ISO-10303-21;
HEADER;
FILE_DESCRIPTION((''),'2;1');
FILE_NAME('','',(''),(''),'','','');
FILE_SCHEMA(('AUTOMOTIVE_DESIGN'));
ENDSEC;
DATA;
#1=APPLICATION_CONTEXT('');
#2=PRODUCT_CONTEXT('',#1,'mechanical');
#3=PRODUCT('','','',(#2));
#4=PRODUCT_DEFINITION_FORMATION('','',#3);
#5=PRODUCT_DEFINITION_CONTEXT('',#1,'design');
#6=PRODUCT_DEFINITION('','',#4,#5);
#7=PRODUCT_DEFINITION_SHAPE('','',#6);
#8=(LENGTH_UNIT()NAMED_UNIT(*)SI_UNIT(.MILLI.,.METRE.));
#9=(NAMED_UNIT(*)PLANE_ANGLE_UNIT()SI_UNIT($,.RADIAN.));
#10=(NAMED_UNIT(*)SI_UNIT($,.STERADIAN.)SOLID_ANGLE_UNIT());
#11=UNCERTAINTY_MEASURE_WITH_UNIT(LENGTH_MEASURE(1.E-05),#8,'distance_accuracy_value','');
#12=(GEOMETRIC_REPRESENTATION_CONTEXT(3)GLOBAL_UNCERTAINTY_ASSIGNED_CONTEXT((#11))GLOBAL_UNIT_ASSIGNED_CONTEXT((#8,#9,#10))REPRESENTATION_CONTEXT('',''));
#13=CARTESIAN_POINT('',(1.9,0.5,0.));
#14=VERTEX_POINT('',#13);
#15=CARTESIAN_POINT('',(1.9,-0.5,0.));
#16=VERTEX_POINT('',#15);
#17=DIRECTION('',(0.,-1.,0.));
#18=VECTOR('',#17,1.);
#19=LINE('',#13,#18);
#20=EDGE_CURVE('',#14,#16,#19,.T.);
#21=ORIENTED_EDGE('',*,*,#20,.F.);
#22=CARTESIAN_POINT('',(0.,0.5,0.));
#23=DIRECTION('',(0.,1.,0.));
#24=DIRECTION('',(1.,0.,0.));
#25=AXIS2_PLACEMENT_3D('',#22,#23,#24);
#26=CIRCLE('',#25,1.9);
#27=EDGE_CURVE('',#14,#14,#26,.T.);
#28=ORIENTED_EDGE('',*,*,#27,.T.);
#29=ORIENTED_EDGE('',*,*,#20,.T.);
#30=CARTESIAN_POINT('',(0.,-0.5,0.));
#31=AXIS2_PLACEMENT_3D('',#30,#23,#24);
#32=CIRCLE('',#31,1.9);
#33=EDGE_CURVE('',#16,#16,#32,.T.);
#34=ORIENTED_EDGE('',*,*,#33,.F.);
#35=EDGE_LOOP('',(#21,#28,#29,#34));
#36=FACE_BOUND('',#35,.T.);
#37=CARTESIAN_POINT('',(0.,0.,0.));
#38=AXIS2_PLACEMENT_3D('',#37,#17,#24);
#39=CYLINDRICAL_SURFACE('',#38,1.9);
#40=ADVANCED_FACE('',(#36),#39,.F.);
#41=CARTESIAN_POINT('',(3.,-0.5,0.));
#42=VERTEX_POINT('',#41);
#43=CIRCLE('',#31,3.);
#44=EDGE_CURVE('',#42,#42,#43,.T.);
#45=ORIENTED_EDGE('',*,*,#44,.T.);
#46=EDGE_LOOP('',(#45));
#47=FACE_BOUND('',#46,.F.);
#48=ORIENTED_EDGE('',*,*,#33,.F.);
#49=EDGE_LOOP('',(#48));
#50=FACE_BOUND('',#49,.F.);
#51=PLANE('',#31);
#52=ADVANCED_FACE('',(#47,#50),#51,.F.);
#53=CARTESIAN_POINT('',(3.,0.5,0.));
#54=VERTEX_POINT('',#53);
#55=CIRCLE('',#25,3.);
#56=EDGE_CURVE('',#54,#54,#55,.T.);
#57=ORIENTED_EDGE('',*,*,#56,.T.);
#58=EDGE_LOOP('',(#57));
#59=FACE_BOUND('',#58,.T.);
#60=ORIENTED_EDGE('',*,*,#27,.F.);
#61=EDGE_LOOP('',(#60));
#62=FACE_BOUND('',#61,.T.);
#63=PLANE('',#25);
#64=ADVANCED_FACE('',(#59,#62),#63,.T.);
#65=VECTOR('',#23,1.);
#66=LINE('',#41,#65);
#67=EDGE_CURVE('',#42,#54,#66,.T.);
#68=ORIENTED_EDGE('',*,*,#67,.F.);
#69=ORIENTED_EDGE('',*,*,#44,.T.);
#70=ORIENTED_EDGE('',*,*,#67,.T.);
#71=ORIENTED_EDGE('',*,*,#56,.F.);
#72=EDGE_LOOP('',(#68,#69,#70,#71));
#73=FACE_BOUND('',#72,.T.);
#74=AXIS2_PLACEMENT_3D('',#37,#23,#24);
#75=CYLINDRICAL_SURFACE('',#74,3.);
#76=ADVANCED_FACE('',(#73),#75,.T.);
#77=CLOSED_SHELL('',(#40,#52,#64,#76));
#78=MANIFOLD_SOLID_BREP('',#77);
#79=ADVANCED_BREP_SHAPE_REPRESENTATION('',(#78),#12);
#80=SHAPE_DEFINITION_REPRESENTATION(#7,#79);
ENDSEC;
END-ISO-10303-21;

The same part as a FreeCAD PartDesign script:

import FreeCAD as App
import Part
import Sketcher
Q = App.Units.Quantity

doc = App.newDocument("Part")
body = doc.addObject("PartDesign::Body", "Body")

# Sketch on XZ plane
sketch1 = body.newObject("Sketcher::SketchObject", "Sketch")
sketch1.AttachmentSupport = (doc.getObject("XZ_Plane"), [""])
sketch1.MapMode = "FlatFace"
sketch1.addGeometry([
    Part.Circle(App.Vector(0, 0, 0), App.Vector(0, 0, 1), 3),
    Part.Circle(App.Vector(0, 0, 0), App.Vector(0, 0, 1), 1.9),
], False)
sketch1.addConstraint([
    Sketcher.Constraint("Coincident", 0, 3, -1, 1),
    Sketcher.Constraint("Coincident", 1, 3, -1, 1),
    Sketcher.Constraint("Diameter", 0, Q("6 mm")),
    Sketcher.Constraint("Diameter", 1, Q("3.8 mm")),
])
pad1 = body.newObject("PartDesign::Pad", "Pad")
pad1.Profile = sketch1
pad1.Length = 1
pad1.Midplane = True

doc.recompute()
